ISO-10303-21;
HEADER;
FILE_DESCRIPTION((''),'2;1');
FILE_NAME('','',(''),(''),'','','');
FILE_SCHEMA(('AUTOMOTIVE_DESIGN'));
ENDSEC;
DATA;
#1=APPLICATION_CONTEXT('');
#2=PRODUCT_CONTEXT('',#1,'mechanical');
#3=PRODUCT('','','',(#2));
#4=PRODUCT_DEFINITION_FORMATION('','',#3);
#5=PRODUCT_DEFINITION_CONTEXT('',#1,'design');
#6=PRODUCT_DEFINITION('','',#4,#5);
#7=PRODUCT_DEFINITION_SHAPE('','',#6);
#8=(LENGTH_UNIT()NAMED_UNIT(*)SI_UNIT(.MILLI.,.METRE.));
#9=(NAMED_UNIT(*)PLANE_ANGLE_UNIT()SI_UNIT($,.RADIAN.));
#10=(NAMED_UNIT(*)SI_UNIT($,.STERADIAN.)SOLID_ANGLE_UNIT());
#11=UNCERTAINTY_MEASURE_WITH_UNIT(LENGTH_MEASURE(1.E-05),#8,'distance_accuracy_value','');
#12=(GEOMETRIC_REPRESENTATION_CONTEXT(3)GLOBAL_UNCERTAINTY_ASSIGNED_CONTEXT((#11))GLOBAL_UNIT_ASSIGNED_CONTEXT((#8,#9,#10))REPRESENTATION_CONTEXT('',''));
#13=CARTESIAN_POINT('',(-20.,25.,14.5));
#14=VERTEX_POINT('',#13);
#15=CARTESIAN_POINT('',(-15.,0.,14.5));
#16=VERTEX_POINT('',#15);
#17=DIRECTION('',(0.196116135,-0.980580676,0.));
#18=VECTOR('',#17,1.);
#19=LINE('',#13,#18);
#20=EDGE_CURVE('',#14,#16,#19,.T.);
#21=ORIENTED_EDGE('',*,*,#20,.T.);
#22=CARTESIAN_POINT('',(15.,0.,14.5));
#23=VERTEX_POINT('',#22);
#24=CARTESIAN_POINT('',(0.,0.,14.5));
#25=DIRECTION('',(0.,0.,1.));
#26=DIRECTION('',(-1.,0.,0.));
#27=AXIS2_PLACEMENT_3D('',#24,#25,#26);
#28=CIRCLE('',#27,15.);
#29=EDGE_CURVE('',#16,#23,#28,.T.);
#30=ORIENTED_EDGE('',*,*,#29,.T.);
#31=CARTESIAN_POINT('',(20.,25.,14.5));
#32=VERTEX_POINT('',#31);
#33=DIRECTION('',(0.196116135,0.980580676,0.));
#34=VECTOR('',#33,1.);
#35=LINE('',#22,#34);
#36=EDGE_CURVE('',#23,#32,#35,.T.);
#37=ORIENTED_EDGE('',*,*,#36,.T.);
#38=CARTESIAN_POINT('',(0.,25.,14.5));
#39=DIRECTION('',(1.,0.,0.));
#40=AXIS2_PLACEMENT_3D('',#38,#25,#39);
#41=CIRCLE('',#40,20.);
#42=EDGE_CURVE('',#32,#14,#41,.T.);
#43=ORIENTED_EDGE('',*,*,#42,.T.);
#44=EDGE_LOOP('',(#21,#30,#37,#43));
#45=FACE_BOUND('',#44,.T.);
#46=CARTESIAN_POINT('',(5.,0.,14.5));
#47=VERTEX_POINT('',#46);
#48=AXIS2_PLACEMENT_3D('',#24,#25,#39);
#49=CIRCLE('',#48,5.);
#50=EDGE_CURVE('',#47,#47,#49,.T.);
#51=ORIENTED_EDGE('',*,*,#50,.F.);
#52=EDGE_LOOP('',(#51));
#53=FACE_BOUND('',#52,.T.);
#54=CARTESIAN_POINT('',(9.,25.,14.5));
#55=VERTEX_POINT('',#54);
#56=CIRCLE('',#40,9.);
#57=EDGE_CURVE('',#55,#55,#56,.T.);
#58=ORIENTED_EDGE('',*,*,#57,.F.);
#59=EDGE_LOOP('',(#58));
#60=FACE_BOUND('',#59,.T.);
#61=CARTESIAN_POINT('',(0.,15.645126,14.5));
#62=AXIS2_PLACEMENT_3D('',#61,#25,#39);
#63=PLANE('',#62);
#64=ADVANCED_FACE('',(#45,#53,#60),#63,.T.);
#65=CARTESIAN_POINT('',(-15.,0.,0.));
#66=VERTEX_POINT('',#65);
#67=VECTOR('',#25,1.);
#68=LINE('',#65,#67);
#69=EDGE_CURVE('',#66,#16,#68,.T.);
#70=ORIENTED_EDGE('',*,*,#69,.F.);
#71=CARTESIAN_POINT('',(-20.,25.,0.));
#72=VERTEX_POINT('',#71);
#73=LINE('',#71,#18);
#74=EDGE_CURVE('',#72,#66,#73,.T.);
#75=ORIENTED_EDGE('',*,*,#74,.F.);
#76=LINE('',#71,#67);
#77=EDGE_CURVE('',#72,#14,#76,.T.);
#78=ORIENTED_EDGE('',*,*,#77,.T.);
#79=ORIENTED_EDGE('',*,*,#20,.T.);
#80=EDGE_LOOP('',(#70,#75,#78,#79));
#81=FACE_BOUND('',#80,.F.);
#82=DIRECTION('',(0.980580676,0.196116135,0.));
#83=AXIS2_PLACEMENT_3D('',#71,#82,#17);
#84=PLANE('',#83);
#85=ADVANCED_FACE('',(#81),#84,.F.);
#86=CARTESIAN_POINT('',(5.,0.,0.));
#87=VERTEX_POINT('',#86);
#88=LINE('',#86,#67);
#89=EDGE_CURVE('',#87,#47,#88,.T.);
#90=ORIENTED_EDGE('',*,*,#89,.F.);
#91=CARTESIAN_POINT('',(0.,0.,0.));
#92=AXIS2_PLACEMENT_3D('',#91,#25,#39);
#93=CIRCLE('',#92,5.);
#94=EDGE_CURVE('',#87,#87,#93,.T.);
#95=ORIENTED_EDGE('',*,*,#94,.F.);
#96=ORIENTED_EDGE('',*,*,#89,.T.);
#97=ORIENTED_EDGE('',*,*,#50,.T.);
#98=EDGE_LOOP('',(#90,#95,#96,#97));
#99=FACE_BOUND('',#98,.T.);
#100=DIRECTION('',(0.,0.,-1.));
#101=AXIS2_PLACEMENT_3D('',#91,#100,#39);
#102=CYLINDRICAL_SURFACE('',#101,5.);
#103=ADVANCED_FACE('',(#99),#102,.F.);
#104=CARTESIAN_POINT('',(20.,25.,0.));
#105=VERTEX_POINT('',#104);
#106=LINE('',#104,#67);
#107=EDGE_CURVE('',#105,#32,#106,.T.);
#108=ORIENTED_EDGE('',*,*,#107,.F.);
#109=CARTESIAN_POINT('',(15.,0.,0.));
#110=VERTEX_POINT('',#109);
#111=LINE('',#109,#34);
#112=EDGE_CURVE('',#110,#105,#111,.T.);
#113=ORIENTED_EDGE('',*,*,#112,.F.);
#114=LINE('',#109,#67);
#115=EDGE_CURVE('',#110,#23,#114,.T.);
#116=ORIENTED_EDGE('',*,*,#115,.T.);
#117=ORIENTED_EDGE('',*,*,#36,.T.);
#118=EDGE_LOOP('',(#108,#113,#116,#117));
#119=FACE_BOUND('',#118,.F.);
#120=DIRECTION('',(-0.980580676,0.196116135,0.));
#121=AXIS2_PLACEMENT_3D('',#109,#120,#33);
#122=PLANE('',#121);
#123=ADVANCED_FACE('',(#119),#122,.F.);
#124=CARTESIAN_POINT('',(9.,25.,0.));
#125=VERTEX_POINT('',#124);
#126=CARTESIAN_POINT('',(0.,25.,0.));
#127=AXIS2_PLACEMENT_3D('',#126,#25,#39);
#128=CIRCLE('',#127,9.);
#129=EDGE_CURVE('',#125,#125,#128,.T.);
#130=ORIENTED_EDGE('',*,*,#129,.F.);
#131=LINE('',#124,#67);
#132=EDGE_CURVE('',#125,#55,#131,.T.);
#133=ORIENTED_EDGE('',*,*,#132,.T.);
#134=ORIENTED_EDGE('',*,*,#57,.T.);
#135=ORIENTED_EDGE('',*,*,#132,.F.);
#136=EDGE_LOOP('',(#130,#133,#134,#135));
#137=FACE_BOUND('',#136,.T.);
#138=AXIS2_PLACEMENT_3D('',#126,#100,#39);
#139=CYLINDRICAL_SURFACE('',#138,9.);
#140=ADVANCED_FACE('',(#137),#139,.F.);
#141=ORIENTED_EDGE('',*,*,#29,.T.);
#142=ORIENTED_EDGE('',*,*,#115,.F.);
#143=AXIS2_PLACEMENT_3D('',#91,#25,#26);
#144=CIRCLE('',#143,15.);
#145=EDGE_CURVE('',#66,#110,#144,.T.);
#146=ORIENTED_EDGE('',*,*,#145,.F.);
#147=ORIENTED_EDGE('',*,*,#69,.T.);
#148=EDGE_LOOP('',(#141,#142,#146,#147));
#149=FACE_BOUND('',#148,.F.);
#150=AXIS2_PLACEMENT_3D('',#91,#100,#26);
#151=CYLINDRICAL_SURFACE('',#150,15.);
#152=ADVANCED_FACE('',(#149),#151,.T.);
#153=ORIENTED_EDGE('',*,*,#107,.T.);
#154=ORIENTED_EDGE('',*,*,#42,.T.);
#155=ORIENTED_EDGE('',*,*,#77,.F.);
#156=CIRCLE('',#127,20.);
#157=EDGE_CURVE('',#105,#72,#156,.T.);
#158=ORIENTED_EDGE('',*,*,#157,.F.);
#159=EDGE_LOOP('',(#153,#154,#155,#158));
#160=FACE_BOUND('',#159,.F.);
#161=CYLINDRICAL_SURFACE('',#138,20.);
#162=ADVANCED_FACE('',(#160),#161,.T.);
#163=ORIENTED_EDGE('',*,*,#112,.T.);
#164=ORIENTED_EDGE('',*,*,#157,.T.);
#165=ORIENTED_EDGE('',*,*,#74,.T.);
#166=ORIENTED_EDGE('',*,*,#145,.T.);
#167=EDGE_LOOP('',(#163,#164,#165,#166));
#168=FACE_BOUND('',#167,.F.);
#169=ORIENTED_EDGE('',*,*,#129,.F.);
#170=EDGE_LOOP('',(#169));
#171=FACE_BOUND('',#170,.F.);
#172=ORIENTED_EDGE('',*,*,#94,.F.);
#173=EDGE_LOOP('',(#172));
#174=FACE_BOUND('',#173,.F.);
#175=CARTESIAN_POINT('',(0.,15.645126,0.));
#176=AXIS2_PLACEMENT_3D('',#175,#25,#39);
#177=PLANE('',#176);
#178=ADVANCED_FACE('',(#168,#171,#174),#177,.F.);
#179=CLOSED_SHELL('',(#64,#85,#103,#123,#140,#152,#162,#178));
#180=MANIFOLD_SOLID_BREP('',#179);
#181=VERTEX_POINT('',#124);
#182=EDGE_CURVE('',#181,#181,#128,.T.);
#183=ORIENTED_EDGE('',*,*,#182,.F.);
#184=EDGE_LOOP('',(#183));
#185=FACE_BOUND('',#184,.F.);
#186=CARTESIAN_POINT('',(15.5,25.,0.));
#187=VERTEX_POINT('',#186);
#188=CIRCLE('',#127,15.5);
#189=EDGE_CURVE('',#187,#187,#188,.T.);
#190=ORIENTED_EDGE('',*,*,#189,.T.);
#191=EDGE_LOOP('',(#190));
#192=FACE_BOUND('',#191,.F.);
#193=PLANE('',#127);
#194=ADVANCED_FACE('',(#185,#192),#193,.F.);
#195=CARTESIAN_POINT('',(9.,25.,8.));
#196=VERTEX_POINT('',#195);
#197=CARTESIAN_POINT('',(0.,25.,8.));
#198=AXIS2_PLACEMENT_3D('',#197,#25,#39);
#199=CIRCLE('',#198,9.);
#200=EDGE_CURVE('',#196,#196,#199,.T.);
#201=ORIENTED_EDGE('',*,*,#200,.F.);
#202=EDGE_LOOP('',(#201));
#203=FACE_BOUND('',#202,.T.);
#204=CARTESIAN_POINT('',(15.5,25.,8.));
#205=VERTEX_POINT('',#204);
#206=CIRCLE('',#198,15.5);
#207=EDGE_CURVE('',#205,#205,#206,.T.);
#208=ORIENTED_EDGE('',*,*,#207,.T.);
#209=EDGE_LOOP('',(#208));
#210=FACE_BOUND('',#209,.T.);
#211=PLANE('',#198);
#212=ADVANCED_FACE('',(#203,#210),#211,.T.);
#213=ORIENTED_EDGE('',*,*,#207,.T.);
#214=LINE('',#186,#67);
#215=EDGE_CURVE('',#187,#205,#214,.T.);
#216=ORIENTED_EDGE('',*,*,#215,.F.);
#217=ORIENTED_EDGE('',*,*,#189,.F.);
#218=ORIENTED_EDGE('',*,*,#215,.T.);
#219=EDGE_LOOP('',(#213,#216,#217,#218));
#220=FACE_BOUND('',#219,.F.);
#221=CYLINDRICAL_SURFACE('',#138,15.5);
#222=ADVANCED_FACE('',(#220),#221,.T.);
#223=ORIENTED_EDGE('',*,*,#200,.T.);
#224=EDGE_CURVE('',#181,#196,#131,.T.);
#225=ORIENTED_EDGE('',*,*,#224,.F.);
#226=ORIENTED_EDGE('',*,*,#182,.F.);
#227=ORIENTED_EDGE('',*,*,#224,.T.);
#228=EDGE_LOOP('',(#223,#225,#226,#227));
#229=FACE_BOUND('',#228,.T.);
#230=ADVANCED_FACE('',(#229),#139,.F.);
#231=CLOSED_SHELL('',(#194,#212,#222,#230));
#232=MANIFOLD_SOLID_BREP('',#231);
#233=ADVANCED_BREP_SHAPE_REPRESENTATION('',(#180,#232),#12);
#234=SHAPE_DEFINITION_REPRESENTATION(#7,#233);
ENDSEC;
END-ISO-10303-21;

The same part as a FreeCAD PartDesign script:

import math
import FreeCAD as App
import Part
import Sketcher

doc = App.newDocument("Part")
params = doc.addObject("Spreadsheet::Sheet", "Params")
for row, (alias, value) in enumerate([
    ("sketch1_diameter", "10 mm"),
    ("sketch1_diameter2", "18 mm"),
    ("sketch1_radius", "20 mm"),
    ("sketch1_radius2", "15 mm"),
    ("pad1_length", "14.5 mm"),
    ("sketch2_diameter", "31 mm"),
    ("sketch2_diameter2", "18 mm"),
    ("pad2_length", "8 mm"),
], start=1):
    params.set(f"A{row}", alias)
    params.set(f"B{row}", "=" + value)
    params.setAlias(f"B{row}", alias)

body = doc.addObject("PartDesign::Body", "Body")

# Sketch on XY plane
sketch1 = body.newObject("Sketcher::SketchObject", "Sketch")
sketch1.AttachmentSupport = (doc.getObject("XY_Plane"), [""])
sketch1.MapMode = "FlatFace"
sketch1.addGeometry([
    Part.LineSegment(App.Vector(15, 0, 0), App.Vector(20, 25, 0)),  # 0
    Part.ArcOfCircle(Part.Circle(App.Vector(0, 25, 0), App.Vector(0, 0, 1), 20), math.radians(0), math.radians(180)),  # 1
    Part.LineSegment(App.Vector(-20, 25, 0), App.Vector(-15, 0, 0)),  # 2
    Part.ArcOfCircle(Part.Circle(App.Vector(0, 0, 0), App.Vector(0, 0, 1), 15), math.radians(180), math.radians(360)),  # 3
    Part.Circle(App.Vector(0, 0, 0), App.Vector(0, 0, 1), 5),  # 4
    Part.Circle(App.Vector(0, 25, 0), App.Vector(0, 0, 1), 9),  # 5
], False)
sketch1.addConstraint([
    Sketcher.Constraint("Coincident", 0, 2, 1, 1),
    Sketcher.Constraint("Coincident", 1, 2, 2, 1),
    Sketcher.Constraint("Coincident", 2, 2, 3, 1),
    Sketcher.Constraint("Coincident", 3, 2, 0, 1),
    Sketcher.Constraint("Coincident", 3, 3, -1, 1),
    Sketcher.Constraint("Coincident", 4, 3, -1, 1),
    Sketcher.Constraint("Coincident", 5, 3, 1, 3),
    Sketcher.Constraint("Symmetric", 0, 2, 1, 2, -2),
    Sketcher.Constraint("PointOnObject", 2, 2, -1),
    Sketcher.Constraint("PointOnObject", 3, 2, -1),
    Sketcher.Constraint("Horizontal", 5, 3, 0, 2),
    Sketcher.Constraint("Diameter", 4, 10.0),
    Sketcher.Constraint("Diameter", 5, 18.0),
    Sketcher.Constraint("Radius", 1, 20.0),
    Sketcher.Constraint("Radius", 3, 15.0),
    Sketcher.Constraint("DistanceY", -1, 1, 1, 3, 25.0),
])
sketch1.setExpression("Constraints[11]", "Params.sketch1_diameter")
sketch1.setExpression("Constraints[12]", "Params.sketch1_diameter2")
sketch1.setExpression("Constraints[13]", "Params.sketch1_radius")
sketch1.setExpression("Constraints[14]", "Params.sketch1_radius2")
pad1 = body.newObject("PartDesign::Pad", "Pad")
pad1.Profile = sketch1
pad1.setExpression("Length", "Params.pad1_length")
body2 = doc.addObject("PartDesign::Body", "Body001")

# Sketch on XY plane
sketch2 = body2.newObject("Sketcher::SketchObject", "Sketch001")
sketch2.AttachmentSupport = (doc.getObject("XY_Plane001"), [""])
sketch2.MapMode = "FlatFace"
sketch2.addGeometry([
    Part.Circle(App.Vector(0, 25, 0), App.Vector(0, 0, 1), 15.5),
    Part.Circle(App.Vector(0, 25, 0), App.Vector(0, 0, 1), 9),
], False)
sketch2.addConstraint([
    Sketcher.Constraint("Coincident", 1, 3, 0, 3),
    Sketcher.Constraint("PointOnObject", 0, 3, -2),
    Sketcher.Constraint("Diameter", 0, 31.0),
    Sketcher.Constraint("Diameter", 1, 18.0),
    Sketcher.Constraint("DistanceY", -1, 1, 0, 3, 25.0),
])
sketch2.setExpression("Constraints[2]", "Params.sketch2_diameter")
sketch2.setExpression("Constraints[3]", "Params.sketch2_diameter2")
pad2 = body2.newObject("PartDesign::Pad", "Pad001")
pad2.Profile = sketch2
pad2.setExpression("Length", "Params.pad2_length")

doc.recompute()
